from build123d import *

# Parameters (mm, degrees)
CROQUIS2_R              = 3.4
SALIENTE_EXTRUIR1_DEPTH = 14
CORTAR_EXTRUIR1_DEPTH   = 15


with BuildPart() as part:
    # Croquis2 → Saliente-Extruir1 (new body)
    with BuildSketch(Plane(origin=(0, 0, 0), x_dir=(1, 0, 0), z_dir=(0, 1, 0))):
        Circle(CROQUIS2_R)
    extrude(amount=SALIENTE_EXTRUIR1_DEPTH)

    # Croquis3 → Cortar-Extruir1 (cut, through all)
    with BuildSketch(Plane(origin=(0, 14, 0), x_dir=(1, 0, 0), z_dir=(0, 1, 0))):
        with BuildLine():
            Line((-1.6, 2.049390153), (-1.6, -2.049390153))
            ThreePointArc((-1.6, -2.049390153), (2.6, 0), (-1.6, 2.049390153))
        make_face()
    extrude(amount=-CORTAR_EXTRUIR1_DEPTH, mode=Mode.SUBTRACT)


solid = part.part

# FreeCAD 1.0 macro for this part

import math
import FreeCAD as App
import Part
import Sketcher
Q = App.Units.Quantity

doc = App.newDocument("Part")
body = doc.addObject("PartDesign::Body", "Body")

sketch1 = body.newObject("Sketcher::SketchObject", "Sketch")
sketch1.AttachmentSupport = (doc.getObject("XZ_Plane"), [""])
sketch1.MapMode = "FlatFace"
sketch1.addGeometry(Part.Circle(App.Vector(0, 0, 0), App.Vector(0, 0, 1), 3.4), False)
sketch1.addConstraint([
    Sketcher.Constraint("Coincident", 0, 3, -1, 1),
    Sketcher.Constraint("Diameter", 0, Q("6.8 mm")),
])
pad1 = body.newObject("PartDesign::Pad", "Pad")
pad1.Profile = sketch1
pad1.Length = 14
pad1.Reversed = True

sketch2 = body.newObject("Sketcher::SketchObject", "Sketch001")
sketch2.AttachmentSupport = (doc.getObject("XZ_Plane"), [""])
sketch2.MapMode = "FlatFace"
sketch2.AttachmentOffset = App.Placement(App.Vector(0, 0, -14), App.Rotation())
sketch2.addGeometry([
    Part.LineSegment(App.Vector(-1.6, -2, 0), App.Vector(-1.6, 2, 0)),
    Part.ArcOfCircle(Part.Circle(App.Vector(0, 0, 0), App.Vector(0, 0, 1), 2.6), math.radians(-128), math.radians(128)),
], False)
sketch2.addConstraint([
    Sketcher.Constraint("Coincident", 0, 1, 1, 1),
    Sketcher.Constraint("Coincident", 1, 2, 0, 2),
    Sketcher.Constraint("Vertical", 0),
    Sketcher.Constraint("Coincident", 1, 3, -1, 1),
    Sketcher.Constraint("Radius", 1, Q("2.6 mm")),
    Sketcher.Constraint("DistanceX", 0, 1, -1, 1, Q("1.6 mm")),
])
pocket1 = body.newObject("PartDesign::Pocket", "Pocket")
pocket1.Profile = sketch2
pocket1.Type = "ThroughAll"
pocket1.Reversed = True

doc.recompute()
